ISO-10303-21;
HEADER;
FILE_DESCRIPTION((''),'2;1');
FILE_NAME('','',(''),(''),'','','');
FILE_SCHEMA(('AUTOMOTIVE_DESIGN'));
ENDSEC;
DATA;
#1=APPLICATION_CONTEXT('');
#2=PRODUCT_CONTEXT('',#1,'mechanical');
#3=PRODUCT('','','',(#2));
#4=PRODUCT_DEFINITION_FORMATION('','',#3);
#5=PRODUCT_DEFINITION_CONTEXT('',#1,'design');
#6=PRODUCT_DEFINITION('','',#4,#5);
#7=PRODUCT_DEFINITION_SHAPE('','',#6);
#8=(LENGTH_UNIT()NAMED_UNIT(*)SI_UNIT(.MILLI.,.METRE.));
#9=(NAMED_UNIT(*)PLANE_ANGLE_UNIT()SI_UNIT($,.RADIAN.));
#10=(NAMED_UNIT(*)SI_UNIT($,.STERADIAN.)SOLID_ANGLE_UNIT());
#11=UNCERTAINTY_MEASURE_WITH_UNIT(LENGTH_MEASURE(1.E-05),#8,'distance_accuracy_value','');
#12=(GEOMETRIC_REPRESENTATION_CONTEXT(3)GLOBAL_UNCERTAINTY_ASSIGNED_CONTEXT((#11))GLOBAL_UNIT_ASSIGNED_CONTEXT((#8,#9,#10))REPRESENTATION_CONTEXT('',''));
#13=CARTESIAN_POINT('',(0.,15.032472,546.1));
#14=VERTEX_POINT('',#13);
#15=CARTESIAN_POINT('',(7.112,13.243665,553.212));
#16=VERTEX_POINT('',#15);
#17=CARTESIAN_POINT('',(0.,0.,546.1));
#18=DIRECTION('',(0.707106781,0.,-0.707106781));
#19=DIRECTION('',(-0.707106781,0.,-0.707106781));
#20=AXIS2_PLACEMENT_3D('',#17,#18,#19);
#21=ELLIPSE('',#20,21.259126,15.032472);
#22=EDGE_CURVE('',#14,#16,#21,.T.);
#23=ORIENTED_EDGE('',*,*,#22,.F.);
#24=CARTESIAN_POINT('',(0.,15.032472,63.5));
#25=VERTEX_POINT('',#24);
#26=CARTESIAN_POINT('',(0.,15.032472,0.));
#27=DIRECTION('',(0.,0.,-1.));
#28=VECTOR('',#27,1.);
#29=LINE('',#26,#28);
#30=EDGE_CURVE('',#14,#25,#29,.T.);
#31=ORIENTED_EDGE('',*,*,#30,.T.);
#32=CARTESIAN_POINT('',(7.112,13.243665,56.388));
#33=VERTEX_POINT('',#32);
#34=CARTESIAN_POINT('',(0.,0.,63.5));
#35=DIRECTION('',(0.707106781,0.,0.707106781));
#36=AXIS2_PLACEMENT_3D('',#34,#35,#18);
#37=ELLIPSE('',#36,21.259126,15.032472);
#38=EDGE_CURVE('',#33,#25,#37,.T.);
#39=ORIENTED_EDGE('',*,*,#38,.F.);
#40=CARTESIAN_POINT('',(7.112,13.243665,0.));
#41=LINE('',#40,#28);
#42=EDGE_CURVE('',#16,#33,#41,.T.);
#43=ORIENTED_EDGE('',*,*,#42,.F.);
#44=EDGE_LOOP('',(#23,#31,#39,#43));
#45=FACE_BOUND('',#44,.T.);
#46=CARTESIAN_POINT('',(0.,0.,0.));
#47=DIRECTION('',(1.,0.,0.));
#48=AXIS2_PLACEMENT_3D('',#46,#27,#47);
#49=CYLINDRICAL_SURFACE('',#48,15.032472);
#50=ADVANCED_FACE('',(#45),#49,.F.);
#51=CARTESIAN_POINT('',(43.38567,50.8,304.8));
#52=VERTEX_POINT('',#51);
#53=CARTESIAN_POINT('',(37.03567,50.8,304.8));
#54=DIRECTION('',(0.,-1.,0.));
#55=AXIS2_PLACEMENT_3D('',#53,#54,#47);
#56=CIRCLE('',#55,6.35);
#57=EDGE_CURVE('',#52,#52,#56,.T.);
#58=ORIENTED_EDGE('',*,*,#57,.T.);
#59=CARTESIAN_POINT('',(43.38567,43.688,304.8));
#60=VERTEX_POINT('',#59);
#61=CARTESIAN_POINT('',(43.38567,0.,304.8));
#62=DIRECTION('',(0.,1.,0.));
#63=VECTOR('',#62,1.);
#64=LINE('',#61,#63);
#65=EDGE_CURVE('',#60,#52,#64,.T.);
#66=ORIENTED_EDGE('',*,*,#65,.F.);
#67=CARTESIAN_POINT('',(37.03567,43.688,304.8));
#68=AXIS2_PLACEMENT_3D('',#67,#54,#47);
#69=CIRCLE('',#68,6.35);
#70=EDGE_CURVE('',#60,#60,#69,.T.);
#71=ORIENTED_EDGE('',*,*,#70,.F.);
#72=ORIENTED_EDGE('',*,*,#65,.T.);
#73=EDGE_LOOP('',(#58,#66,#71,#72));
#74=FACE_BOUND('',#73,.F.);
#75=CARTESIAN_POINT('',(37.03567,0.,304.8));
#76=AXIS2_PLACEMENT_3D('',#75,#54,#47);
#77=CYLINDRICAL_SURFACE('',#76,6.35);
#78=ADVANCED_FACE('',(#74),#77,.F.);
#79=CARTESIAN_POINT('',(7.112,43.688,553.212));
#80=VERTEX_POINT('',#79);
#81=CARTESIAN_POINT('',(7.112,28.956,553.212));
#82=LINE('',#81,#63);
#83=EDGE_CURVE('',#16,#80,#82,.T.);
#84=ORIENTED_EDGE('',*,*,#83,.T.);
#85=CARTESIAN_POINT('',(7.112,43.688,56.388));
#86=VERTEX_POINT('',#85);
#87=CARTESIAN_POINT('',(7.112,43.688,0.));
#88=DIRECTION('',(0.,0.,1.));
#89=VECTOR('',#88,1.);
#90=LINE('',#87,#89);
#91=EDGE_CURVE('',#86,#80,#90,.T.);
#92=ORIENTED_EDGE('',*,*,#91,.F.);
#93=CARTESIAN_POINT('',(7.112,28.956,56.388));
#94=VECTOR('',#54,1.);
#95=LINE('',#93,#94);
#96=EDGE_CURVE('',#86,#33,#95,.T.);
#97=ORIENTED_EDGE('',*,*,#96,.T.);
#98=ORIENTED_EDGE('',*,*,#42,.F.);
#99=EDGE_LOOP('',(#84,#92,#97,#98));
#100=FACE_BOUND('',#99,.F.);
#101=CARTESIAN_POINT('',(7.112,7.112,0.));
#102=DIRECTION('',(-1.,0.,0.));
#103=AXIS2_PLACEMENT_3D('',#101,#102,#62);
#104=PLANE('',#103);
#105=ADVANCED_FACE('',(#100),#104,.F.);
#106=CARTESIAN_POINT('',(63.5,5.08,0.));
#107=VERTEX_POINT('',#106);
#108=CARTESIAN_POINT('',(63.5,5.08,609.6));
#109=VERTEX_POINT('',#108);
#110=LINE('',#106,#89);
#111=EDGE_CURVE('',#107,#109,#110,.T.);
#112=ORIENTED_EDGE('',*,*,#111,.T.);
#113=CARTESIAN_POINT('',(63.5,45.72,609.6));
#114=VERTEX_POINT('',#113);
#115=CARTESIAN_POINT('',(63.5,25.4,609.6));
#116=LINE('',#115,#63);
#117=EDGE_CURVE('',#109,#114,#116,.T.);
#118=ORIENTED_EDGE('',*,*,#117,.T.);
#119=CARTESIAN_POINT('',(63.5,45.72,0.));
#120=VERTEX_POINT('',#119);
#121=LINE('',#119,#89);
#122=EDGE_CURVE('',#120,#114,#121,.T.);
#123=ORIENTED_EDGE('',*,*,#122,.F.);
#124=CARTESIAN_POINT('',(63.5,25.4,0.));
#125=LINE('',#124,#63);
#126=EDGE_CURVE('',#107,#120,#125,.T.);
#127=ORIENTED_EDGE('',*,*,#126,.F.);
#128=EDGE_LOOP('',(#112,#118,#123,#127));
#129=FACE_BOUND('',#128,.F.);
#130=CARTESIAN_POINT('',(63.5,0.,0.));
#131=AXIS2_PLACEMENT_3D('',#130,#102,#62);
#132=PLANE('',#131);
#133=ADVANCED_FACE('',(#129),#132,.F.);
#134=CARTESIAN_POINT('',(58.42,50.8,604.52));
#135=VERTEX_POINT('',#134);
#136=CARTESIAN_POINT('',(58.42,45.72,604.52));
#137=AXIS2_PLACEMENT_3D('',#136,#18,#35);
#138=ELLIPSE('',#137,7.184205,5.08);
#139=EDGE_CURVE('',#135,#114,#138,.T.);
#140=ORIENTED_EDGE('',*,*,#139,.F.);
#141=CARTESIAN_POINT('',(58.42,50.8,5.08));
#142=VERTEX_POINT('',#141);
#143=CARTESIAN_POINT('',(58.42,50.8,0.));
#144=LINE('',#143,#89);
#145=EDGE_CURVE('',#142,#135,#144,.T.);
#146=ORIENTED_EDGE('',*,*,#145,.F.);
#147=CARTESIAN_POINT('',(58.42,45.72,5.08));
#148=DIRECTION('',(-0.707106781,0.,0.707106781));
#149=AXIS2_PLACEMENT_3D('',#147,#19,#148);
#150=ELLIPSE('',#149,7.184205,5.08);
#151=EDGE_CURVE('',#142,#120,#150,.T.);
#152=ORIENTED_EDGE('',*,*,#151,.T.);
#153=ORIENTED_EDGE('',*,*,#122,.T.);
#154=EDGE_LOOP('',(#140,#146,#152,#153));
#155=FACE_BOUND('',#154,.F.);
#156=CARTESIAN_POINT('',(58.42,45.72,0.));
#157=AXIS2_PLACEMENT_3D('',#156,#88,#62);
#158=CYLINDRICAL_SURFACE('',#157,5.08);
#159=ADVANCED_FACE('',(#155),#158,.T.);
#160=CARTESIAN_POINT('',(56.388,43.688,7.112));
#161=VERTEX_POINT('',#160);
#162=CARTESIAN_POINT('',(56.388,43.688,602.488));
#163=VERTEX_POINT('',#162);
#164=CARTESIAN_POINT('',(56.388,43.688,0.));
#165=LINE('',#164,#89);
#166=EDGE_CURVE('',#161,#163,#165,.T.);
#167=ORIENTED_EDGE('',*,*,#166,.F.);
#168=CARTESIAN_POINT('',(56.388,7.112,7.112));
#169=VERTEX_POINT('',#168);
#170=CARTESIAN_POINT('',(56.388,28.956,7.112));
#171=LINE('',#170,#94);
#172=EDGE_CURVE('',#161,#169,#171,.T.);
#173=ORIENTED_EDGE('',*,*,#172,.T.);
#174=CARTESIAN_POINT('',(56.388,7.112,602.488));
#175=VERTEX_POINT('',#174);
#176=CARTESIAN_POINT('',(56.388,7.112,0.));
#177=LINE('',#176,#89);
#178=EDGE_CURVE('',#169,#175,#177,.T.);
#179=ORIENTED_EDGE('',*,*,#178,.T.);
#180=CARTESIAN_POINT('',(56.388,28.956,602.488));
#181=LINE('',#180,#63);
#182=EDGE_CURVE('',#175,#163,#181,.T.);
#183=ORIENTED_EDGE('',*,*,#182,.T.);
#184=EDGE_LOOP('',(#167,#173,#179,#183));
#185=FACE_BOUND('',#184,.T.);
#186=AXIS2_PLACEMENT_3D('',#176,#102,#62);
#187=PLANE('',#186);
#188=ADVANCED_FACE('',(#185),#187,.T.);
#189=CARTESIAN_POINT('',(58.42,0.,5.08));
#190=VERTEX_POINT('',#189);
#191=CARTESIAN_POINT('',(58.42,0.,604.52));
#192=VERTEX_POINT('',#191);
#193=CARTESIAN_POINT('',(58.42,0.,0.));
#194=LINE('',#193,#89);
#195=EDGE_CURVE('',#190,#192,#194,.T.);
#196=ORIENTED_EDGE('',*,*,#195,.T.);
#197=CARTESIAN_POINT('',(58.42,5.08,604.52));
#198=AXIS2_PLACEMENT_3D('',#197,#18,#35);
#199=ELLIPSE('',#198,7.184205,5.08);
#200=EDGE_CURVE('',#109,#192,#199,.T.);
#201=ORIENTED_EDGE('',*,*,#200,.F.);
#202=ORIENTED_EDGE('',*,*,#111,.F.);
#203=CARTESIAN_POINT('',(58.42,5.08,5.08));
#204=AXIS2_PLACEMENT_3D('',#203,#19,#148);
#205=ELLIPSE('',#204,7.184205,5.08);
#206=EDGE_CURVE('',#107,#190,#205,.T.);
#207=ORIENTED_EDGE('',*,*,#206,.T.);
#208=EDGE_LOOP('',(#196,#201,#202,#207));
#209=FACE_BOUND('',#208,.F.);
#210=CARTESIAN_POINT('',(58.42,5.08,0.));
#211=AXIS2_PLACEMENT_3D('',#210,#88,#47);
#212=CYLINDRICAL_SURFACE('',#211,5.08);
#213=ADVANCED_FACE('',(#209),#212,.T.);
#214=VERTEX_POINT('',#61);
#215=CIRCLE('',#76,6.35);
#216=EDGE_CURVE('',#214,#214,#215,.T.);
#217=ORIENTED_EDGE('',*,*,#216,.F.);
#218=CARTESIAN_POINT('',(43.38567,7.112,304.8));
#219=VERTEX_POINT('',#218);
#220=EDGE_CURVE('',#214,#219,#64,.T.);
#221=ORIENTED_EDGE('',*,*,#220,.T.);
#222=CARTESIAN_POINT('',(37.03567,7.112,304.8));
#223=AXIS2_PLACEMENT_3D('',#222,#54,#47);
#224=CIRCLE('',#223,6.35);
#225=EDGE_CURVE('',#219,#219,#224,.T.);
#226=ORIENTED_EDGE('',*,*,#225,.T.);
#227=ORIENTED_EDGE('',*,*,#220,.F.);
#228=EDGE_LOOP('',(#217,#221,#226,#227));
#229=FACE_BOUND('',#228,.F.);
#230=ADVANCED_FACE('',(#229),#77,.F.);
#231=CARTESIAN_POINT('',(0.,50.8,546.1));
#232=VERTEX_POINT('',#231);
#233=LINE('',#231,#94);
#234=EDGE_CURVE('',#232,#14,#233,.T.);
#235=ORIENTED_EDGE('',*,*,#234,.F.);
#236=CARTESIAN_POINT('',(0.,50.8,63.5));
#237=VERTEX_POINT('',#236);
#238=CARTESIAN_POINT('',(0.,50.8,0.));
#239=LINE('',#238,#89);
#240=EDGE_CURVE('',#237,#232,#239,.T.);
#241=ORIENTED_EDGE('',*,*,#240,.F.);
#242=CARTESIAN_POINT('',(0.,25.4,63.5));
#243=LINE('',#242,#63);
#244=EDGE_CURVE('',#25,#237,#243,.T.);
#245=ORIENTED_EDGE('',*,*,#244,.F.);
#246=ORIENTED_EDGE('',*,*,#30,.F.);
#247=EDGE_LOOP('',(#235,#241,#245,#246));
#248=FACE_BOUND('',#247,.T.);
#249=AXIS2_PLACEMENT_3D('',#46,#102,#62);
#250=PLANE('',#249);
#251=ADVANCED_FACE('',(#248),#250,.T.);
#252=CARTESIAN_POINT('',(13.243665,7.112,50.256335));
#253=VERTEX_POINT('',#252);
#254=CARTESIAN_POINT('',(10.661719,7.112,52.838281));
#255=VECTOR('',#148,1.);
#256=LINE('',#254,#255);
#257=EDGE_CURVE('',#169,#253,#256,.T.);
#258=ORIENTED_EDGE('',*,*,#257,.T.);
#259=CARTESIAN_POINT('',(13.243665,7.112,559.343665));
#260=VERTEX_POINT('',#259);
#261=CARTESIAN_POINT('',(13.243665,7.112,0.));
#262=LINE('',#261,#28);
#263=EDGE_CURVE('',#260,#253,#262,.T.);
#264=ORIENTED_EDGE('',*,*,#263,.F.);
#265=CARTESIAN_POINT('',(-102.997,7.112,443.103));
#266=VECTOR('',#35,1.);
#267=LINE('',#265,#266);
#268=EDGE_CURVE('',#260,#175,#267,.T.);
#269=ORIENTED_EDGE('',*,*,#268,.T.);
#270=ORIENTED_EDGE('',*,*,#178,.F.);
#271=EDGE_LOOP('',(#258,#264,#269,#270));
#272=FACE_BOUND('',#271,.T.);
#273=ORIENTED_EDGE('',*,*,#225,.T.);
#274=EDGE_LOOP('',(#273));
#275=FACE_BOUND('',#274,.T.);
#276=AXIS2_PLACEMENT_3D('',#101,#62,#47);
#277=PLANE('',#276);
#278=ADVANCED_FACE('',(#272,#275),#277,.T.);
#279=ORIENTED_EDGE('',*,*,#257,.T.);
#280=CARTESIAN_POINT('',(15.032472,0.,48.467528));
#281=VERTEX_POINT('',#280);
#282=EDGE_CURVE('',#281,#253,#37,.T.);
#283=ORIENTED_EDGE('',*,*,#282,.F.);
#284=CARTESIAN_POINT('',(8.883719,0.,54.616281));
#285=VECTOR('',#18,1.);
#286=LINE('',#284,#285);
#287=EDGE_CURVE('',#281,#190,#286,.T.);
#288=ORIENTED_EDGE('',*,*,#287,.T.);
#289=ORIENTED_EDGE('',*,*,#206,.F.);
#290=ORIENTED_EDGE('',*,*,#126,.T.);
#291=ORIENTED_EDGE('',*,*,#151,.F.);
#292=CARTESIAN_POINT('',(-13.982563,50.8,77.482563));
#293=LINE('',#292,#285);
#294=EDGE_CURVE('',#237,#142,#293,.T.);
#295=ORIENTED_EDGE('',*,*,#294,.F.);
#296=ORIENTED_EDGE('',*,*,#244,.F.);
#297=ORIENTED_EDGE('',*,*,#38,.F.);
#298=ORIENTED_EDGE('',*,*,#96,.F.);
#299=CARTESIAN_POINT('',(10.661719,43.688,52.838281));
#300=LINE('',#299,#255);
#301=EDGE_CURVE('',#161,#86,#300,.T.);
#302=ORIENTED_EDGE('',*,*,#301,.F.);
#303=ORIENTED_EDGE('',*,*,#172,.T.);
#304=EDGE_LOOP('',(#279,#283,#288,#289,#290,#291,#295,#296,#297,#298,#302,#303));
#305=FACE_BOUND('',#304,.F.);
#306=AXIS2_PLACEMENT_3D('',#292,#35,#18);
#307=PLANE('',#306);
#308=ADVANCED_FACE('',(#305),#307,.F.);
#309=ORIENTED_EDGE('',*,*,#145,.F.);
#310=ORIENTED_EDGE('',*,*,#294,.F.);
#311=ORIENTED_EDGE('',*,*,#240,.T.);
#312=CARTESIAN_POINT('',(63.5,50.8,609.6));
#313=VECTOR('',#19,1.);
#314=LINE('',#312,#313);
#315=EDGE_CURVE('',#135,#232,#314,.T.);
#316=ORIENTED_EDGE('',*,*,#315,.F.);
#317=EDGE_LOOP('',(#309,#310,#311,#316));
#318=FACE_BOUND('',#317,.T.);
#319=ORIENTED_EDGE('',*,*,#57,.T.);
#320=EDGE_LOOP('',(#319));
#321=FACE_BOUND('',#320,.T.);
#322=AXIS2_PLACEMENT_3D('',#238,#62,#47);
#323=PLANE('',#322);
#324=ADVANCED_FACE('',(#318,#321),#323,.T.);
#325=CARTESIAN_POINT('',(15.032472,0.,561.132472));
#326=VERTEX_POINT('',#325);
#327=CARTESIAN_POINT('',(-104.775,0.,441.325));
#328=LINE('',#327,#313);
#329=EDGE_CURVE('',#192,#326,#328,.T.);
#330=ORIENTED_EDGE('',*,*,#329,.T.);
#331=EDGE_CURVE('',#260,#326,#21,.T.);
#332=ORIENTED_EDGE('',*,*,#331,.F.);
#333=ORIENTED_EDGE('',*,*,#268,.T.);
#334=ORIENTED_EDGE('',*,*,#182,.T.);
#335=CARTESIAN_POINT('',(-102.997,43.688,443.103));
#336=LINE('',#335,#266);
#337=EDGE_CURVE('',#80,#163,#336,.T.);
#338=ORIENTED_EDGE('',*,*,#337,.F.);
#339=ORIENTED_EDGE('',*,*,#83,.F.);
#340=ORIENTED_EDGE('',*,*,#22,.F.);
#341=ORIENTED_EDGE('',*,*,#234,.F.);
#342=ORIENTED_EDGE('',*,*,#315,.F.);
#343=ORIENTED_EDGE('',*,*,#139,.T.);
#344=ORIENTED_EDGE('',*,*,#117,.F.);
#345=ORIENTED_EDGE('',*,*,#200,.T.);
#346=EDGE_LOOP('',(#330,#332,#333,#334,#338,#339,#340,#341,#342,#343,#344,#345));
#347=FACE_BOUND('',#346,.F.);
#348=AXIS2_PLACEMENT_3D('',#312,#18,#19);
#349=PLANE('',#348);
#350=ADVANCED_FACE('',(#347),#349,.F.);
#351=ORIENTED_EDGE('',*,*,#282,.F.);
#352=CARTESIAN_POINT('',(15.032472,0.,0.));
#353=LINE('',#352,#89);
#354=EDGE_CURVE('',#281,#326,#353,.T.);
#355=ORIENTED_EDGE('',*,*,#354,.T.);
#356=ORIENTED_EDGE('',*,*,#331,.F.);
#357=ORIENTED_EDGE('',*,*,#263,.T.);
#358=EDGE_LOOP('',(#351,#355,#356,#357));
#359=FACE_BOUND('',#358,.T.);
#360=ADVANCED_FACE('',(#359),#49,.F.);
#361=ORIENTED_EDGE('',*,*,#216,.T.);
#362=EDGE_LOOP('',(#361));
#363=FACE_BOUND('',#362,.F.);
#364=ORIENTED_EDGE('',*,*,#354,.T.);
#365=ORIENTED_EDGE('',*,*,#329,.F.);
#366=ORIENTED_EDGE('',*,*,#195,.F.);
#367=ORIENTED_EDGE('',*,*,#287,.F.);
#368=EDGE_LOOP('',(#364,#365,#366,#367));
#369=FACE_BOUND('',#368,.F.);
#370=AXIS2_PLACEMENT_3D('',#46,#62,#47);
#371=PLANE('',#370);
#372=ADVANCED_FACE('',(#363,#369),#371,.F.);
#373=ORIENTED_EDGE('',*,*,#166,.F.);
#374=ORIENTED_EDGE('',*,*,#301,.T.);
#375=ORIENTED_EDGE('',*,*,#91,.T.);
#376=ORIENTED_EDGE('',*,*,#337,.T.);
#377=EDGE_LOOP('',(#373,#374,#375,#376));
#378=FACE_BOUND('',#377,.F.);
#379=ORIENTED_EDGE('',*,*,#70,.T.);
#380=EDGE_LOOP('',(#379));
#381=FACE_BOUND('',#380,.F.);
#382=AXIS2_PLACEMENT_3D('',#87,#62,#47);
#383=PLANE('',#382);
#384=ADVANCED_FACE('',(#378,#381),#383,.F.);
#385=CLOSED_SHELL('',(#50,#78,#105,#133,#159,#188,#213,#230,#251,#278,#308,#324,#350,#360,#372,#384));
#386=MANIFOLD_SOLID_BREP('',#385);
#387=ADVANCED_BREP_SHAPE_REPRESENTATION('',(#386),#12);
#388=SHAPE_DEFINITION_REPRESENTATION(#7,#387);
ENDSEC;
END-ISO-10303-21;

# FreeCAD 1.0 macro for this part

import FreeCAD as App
import Part
import Sketcher
Q = App.Units.Quantity


def edges_at(feature, points):
    """Names of the edges that pass closest to the given points."""
    edges = feature.Shape.Edges
    near = lambda p: min(range(len(edges)), key=lambda i: edges[i].distToShape(Part.Vertex(*p))[0])
    return sorted({f"Edge{near(p) + 1}" for p in points})


def add_polygon(sketch, points):
    """Adds a closed chain of lines whose ends are joined by coincident constraints."""
    first, n = sketch.GeometryCount, len(points)
    for a, b in zip(points, points[1:] + points[:1]):
        sketch.addGeometry(Part.LineSegment(App.Vector(*a, 0), App.Vector(*b, 0)), False)
    for i in range(n):
        sketch.addConstraint(Sketcher.Constraint("Coincident", first + i, 2, first + (i + 1) % n, 1))

doc = App.newDocument("Part")
body = doc.addObject("PartDesign::Body", "Body")

# Sketch on XY plane
sketch1 = body.newObject("Sketcher::SketchObject", "Sketch")
sketch1.AttachmentSupport = (doc.getObject("XY_Plane"), [""])
sketch1.MapMode = "FlatFace"
add_polygon(sketch1, [(0, 51), (0, 0), (64, 0), (64, 51)])  # lines 0-3
sketch1.addConstraint([
    Sketcher.Constraint("Vertical", 0),
    Sketcher.Constraint("Horizontal", 1),
    Sketcher.Constraint("Vertical", 2),
    Sketcher.Constraint("Horizontal", 3),
    Sketcher.Constraint("Coincident", 0, 2, -1, 1),
    Sketcher.Constraint("DistanceY", 0, 2, 0, 1, Q("2 in")),
    Sketcher.Constraint("DistanceX", 1, 1, 1, 2, Q("2.5 in")),
])
pad1 = body.newObject("PartDesign::Pad", "Pad")
pad1.Profile = sketch1
pad1.Length = Q("24 in")

# Sketch on XZ plane
sketch2 = body.newObject("Sketcher::SketchObject", "Sketch001")
sketch2.AttachmentSupport = (doc.getObject("XZ_Plane"), [""])
sketch2.MapMode = "FlatFace"
sketch2.AttachmentOffset = App.Placement(App.Vector(0, 0, -2 * 25.4), App.Rotation())
add_polygon(sketch2, [(-14, 77), (64, 0), (-40, 0)])  # lines 0-2
add_polygon(sketch2, [(0, 610), (64, 610), (0, 546)])  # lines 3-5
sketch2.addConstraint([
    Sketcher.Constraint("Horizontal", 1),
    Sketcher.Constraint("Horizontal", 3),
    Sketcher.Constraint("Vertical", 5),
    Sketcher.Constraint("PointOnObject", 0, 2, -1),
    Sketcher.Constraint("PointOnObject", 4, 2, -2),
    Sketcher.Constraint("Perpendicular", 0, 4),
    Sketcher.Constraint("Vertical", 0, 2, 3, 2),
    Sketcher.Constraint("Equal", 3, 5),
    Sketcher.Constraint("DistanceX", 3, 1, 3, 2, Q("2.5 in")),
    Sketcher.Constraint("DistanceY", -1, 1, 3, 2, Q("24 in")),
    Sketcher.Constraint("Distance", 0, Q("109.576891 mm")),
    Sketcher.Constraint("DistanceX", 1, 2, 1, 1, Q("103.600932 mm")),
])
pocket1 = body.newObject("PartDesign::Pocket", "Pocket")
pocket1.Profile = sketch2
pocket1.Length = Q("3 in")
pocket1.Reversed = True

# Sketch on XY plane
sketch3 = body.newObject("Sketcher::SketchObject", "Sketch002")
sketch3.AttachmentSupport = (doc.getObject("XY_Plane"), [""])
sketch3.MapMode = "FlatFace"
sketch3.addGeometry(Part.Circle(App.Vector(0, 0, 0), App.Vector(0, 0, 1), 15), False)
sketch3.addConstraint([
    Sketcher.Constraint("Coincident", 0, 3, -1, 1),
    Sketcher.Constraint("Diameter", 0, Q("30.064944 mm")),
])
pocket2 = body.newObject("PartDesign::Pocket", "Pocket001")
pocket2.Profile = sketch3
pocket2.Length = Q("24 in")
pocket2.Reversed = True
doc.recompute()

fillet = body.newObject("PartDesign::Fillet", "Fillet")
fillet.Base = (pocket2, edges_at(pocket2, [(63.5, 50.8, 304.8), (63.5, 0, 304.8)]))
fillet.Radius = Q("0.2 in")

# Sketch on XZ plane
sketch4 = body.newObject("Sketcher::SketchObject", "Sketch003")
sketch4.AttachmentSupport = (doc.getObject("XZ_Plane"), [""])
sketch4.MapMode = "FlatFace"
sketch4.addGeometry(Part.Circle(App.Vector(37, 305, 0), App.Vector(0, 0, 1), 6), False)
sketch4.addConstraint([
    Sketcher.Constraint("Diameter", 0, Q("0.5 in")),
    Sketcher.Constraint("DistanceY", -1, 1, 0, 3, Q("12 in")),
    Sketcher.Constraint("DistanceX", -1, 1, 0, 3, Q("37.03567 mm")),
])
pocket3 = body.newObject("PartDesign::Pocket", "Pocket002")
pocket3.Profile = sketch4
pocket3.Length = Q("3 in")

# Sketch on XY plane
sketch5 = body.newObject("Sketcher::SketchObject", "Sketch004")
sketch5.AttachmentSupport = (doc.getObject("XY_Plane"), [""])
sketch5.MapMode = "FlatFace"
add_polygon(sketch5, [(7, 44), (7, 7), (56, 7), (56, 44)])  # lines 0-3
sketch5.addConstraint([
    Sketcher.Constraint("Vertical", 0),
    Sketcher.Constraint("Horizontal", 1),
    Sketcher.Constraint("Vertical", 2),
    Sketcher.Constraint("Horizontal", 3),
    Sketcher.Constraint("DistanceX", 1, 1, 1, 2, Q("1.94 in")),
    Sketcher.Constraint("DistanceY", 0, 2, 0, 1, Q("1.44 in")),
    Sketcher.Constraint("DistanceX", -1, 1, 0, 2, Q("0.28 in")),
    Sketcher.Constraint("DistanceY", -1, 1, 0, 2, Q("0.28 in")),
])
pocket4 = body.newObject("PartDesign::Pocket", "Pocket003")
pocket4.Profile = sketch5
pocket4.Length = Q("24 in")
pocket4.Reversed = True

doc.recompute()
